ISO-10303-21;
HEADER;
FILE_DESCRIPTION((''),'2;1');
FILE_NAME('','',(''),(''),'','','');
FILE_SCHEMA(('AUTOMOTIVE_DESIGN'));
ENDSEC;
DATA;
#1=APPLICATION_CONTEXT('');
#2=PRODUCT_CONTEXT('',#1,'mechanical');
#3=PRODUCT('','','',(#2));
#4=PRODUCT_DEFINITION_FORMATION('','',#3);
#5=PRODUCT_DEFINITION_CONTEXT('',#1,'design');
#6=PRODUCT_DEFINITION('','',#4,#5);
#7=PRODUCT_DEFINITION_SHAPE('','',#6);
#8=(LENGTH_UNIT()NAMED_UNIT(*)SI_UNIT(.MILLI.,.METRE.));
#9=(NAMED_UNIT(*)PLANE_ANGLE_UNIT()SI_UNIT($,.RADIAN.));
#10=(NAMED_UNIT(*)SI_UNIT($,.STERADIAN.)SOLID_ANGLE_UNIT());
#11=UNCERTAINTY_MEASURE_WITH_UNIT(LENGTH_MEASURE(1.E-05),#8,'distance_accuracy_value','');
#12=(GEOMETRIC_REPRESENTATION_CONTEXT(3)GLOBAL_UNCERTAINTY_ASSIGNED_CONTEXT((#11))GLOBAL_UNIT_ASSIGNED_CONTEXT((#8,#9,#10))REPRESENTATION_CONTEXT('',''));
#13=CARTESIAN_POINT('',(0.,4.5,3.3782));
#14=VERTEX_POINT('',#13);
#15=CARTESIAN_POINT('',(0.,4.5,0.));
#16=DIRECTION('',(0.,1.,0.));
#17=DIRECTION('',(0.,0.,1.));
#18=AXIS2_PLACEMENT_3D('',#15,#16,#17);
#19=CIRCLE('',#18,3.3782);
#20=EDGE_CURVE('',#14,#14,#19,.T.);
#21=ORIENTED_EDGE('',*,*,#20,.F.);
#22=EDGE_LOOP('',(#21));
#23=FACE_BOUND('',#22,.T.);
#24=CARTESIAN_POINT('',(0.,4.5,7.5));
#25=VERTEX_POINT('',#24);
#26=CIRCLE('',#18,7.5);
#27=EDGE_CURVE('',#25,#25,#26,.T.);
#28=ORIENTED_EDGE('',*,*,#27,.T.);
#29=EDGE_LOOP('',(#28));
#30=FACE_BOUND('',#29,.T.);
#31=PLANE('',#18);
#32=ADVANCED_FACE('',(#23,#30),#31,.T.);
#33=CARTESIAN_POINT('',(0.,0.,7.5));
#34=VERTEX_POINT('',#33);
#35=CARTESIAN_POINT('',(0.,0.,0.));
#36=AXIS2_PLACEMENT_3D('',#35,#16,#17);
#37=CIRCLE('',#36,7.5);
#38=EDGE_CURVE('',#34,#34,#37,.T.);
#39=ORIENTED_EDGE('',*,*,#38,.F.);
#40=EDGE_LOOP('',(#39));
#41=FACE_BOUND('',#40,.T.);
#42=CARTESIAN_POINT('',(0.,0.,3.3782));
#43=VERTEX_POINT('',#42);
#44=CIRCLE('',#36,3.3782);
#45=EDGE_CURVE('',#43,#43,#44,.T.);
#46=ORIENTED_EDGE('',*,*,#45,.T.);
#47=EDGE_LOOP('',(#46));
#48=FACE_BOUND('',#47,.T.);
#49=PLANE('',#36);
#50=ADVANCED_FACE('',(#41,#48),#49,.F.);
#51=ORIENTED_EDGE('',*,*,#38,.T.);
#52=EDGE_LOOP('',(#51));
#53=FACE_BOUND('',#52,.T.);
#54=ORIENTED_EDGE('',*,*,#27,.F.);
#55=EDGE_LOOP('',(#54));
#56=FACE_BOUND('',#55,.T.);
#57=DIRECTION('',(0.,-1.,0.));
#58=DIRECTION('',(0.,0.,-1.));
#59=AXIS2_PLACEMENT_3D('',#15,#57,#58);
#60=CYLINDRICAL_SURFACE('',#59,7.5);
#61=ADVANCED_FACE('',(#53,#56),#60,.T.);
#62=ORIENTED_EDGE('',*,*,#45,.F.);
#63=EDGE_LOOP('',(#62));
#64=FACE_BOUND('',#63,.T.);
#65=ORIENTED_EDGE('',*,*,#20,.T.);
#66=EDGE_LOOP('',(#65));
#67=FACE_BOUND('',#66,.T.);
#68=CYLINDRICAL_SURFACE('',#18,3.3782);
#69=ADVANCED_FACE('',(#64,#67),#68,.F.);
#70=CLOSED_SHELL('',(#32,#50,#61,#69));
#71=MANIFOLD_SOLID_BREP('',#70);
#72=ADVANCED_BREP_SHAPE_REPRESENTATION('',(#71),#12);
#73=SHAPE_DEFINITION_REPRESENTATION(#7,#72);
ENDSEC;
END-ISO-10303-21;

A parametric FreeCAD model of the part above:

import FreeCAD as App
import Part
import Sketcher

doc = App.newDocument("Part")
body = doc.addObject("PartDesign::Body", "Body")

# Sketch on XZ plane
sketch1 = doc.addObject("Sketcher::SketchObject", "Sketch")
body.addObject(sketch1)
sketch1.AttachmentSupport = (doc.XZ_Plane, [""])
sketch1.MapMode = "FlatFace"
sketch1.addGeometry(Part.Circle(App.Vector(0, 0, 0), App.Vector(0, 0, 1), 7.5), False)
sketch1.addConstraint(Sketcher.Constraint("Coincident", 0, 3, -1, 1))
sketch1.addConstraint(Sketcher.Constraint("Diameter", 0, 15.0))
pad1 = doc.addObject("PartDesign::Pad", "Pad")
body.addObject(pad1)
pad1.Profile = sketch1
pad1.Length = 4.5
pad1.Reversed = True

# Sketch on XZ plane
sketch2 = doc.addObject("Sketcher::SketchObject", "Sketch001")
body.addObject(sketch2)
sketch2.AttachmentSupport = (doc.XZ_Plane, [""])
sketch2.MapMode = "FlatFace"
sketch2.AttachmentOffset = App.Placement(App.Vector(0, 0, -4.5), App.Rotation())
sketch2.addGeometry(Part.Circle(App.Vector(0, 0, 0), App.Vector(0, 0, 1), 3.3782), False)
sketch2.addConstraint(Sketcher.Constraint("Coincident", 0, 3, -1, 1))
sketch2.addConstraint(Sketcher.Constraint("Diameter", 0, 6.7564))
doc.recompute()
hole = doc.addObject("PartDesign::Hole", "Hole")
body.addObject(hole)
hole.Profile = sketch2
hole.ThreadType = "None"
hole.Diameter = 6.7564
hole.DepthType = "ThroughAll"
hole.Reversed = True

doc.recompute()
